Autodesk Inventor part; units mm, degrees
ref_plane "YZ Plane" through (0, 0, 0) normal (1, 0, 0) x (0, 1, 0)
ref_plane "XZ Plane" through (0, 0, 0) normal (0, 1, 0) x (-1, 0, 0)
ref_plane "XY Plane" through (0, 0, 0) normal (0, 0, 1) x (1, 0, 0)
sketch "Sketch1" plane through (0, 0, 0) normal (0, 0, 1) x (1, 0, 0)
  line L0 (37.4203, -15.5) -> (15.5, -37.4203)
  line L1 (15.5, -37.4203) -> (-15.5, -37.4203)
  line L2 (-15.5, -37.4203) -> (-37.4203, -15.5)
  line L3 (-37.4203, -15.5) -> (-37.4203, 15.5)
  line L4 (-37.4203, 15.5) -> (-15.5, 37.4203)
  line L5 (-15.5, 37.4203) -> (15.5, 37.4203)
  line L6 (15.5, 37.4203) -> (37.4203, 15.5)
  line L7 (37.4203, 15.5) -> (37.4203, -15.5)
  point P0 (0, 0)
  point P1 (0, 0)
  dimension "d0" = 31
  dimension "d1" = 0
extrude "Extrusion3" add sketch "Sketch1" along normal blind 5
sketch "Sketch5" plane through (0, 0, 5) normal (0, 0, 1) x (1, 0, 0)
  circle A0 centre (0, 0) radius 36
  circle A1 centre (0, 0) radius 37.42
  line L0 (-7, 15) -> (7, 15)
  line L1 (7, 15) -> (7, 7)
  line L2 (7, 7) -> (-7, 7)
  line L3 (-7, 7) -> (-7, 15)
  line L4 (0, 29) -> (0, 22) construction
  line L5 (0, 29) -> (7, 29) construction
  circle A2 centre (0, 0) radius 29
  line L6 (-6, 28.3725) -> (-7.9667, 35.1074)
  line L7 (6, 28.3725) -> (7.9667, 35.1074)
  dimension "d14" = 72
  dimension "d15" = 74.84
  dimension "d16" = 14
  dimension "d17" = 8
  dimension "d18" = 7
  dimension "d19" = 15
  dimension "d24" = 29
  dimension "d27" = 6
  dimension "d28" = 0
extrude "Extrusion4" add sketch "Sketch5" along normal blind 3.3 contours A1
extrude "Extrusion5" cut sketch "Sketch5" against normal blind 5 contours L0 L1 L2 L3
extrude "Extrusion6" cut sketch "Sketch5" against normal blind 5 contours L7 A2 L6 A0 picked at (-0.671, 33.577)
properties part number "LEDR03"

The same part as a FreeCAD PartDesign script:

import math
import FreeCAD as App
import Part
import Sketcher

V = App.Vector
Q = App.Units.Quantity

doc = App.newDocument("Part")
body = doc.addObject("PartDesign::Body", "Body")

sketch1 = body.newObject("Sketcher::SketchObject", "Sketch")
sketch1.AttachmentSupport = (doc.getObject("XY_Plane"), [""])
sketch1.MapMode = "FlatFace"
sketch1.addGeometry(Part.LineSegment(V(16, -37, 0), V(37, -16, 0)), False)
sketch1.addGeometry(Part.LineSegment(V(37, -16, 0), V(37, 16, 0)), False)
sketch1.addGeometry(Part.LineSegment(V(37, 16, 0), V(16, 37, 0)), False)
sketch1.addGeometry(Part.LineSegment(V(16, 37, 0), V(-16, 37, 0)), False)
sketch1.addGeometry(Part.LineSegment(V(-16, 37, 0), V(-37, 16, 0)), False)
sketch1.addGeometry(Part.LineSegment(V(-37, 16, 0), V(-37, -16, 0)), False)
sketch1.addGeometry(Part.LineSegment(V(-37, -16, 0), V(-16, -37, 0)), False)
sketch1.addGeometry(Part.LineSegment(V(-16, -37, 0), V(16, -37, 0)), False)
sketch1.addConstraint(Sketcher.Constraint("Coincident", 0, 2, 1, 1))
sketch1.addConstraint(Sketcher.Constraint("Coincident", 1, 2, 2, 1))
sketch1.addConstraint(Sketcher.Constraint("Coincident", 2, 2, 3, 1))
sketch1.addConstraint(Sketcher.Constraint("Coincident", 3, 2, 4, 1))
sketch1.addConstraint(Sketcher.Constraint("Coincident", 4, 2, 5, 1))
sketch1.addConstraint(Sketcher.Constraint("Coincident", 5, 2, 6, 1))
sketch1.addConstraint(Sketcher.Constraint("Coincident", 6, 2, 7, 1))
sketch1.addConstraint(Sketcher.Constraint("Coincident", 7, 2, 0, 1))
sketch1.addConstraint(Sketcher.Constraint("Vertical", 1))
sketch1.addConstraint(Sketcher.Constraint("Horizontal", 3))
sketch1.addConstraint(Sketcher.Constraint("Vertical", 5))
sketch1.addConstraint(Sketcher.Constraint("Horizontal", 7))
sketch1.addConstraint(Sketcher.Constraint("Symmetric", 0, 2, 4, 2, -1, 1))
sketch1.addConstraint(Sketcher.Constraint("Symmetric", 2, 2, 6, 2, -1, 1))
sketch1.addConstraint(Sketcher.Constraint("Perpendicular", 0, 2))
sketch1.addConstraint(Sketcher.Constraint("Perpendicular", 2, 4))
sketch1.addConstraint(Sketcher.Constraint("Perpendicular", 4, 6))
sketch1.addConstraint(Sketcher.Constraint("Horizontal", 1, 2, 4, 2))
sketch1.addConstraint(Sketcher.Constraint("Vertical", 3, 2, 6, 2))
sketch1.addConstraint(Sketcher.Constraint("Equal", 7, 1))
sketch1.addConstraint(Sketcher.Constraint("DistanceX", 3, 2, 3, 1, Q("31 mm")))
sketch1.addConstraint(Sketcher.Constraint("Distance", 0, Q("31 mm")))
pad1 = body.newObject("PartDesign::Pad", "Pad")
pad1.Profile = sketch1
pad1.Length = 5

sketch2 = body.newObject("Sketcher::SketchObject", "Sketch001")
sketch2.AttachmentSupport = (doc.getObject("XY_Plane"), [""])
sketch2.MapMode = "FlatFace"
sketch2.AttachmentOffset = App.Placement(V(0, 0, 5), App.Rotation())
sketch2.addGeometry(Part.Circle(V(0, 0, 0), V(0, 0, 1), 37), False)
sketch2.addGeometry(Part.Circle(V(0, 0, 0), V(0, 0, 1), 36), False)
sketch2.addConstraint(Sketcher.Constraint("Coincident", 0, 3, -1, 1))
sketch2.addConstraint(Sketcher.Constraint("Coincident", 1, 3, -1, 1))
sketch2.addConstraint(Sketcher.Constraint("Diameter", 1, Q("72 mm")))
sketch2.addConstraint(Sketcher.Constraint("Diameter", 0, Q("74.84 mm")))
pad2 = body.newObject("PartDesign::Pad", "Pad001")
pad2.Profile = sketch2
pad2.Length = 3.3

sketch3 = body.newObject("Sketcher::SketchObject", "Sketch002")
sketch3.AttachmentSupport = (doc.getObject("XY_Plane"), [""])
sketch3.MapMode = "FlatFace"
sketch3.AttachmentOffset = App.Placement(V(0, 0, 5), App.Rotation())
sketch3.addGeometry(Part.LineSegment(V(7, 15, 0), V(-7, 15, 0)), False)
sketch3.addGeometry(Part.LineSegment(V(-7, 15, 0), V(-7, 7, 0)), False)
sketch3.addGeometry(Part.LineSegment(V(-7, 7, 0), V(7, 7, 0)), False)
sketch3.addGeometry(Part.LineSegment(V(7, 7, 0), V(7, 15, 0)), False)
sketch3.addConstraint(Sketcher.Constraint("Coincident", 0, 2, 1, 1))
sketch3.addConstraint(Sketcher.Constraint("Coincident", 1, 2, 2, 1))
sketch3.addConstraint(Sketcher.Constraint("Coincident", 2, 2, 3, 1))
sketch3.addConstraint(Sketcher.Constraint("Coincident", 3, 2, 0, 1))
sketch3.addConstraint(Sketcher.Constraint("Horizontal", 0))
sketch3.addConstraint(Sketcher.Constraint("Vertical", 1))
sketch3.addConstraint(Sketcher.Constraint("Horizontal", 2))
sketch3.addConstraint(Sketcher.Constraint("Vertical", 3))
sketch3.addConstraint(Sketcher.Constraint("DistanceX", 0, 2, 0, 1, Q("14 mm")))
sketch3.addConstraint(Sketcher.Constraint("DistanceY", 1, 2, 1, 1, Q("8 mm")))
sketch3.addConstraint(Sketcher.Constraint("DistanceX", 0, 2, -1, 1, Q("7 mm")))
sketch3.addConstraint(Sketcher.Constraint("DistanceY", -1, 1, 0, 2, Q("15 mm")))
pocket1 = body.newObject("PartDesign::Pocket", "Pocket")
pocket1.Profile = sketch3
pocket1.Length = 5

sketch4 = body.newObject("Sketcher::SketchObject", "Sketch003")
sketch4.AttachmentSupport = (doc.getObject("XY_Plane"), [""])
sketch4.MapMode = "FlatFace"
sketch4.AttachmentOffset = App.Placement(V(0, 0, 5), App.Rotation())
sketch4.addGeometry(Part.LineSegment(V(6, 28, 0), V(8, 35, 0)), False)
sketch4.addGeometry(Part.ArcOfCircle(Part.Circle(V(0, 0, 0), V(0, 0, 1), 36), math.radians(77), math.radians(103)), False)
sketch4.addGeometry(Part.LineSegment(V(-8, 35, 0), V(-6, 28, 0)), False)
sketch4.addGeometry(Part.ArcOfCircle(Part.Circle(V(0, 0, 0), V(0, 0, 1), 29), math.radians(78), math.radians(102)), False)
sketch4.addConstraint(Sketcher.Constraint("Coincident", 0, 2, 1, 1))
sketch4.addConstraint(Sketcher.Constraint("Coincident", 1, 2, 2, 1))
sketch4.addConstraint(Sketcher.Constraint("Coincident", 2, 2, 3, 2))
sketch4.addConstraint(Sketcher.Constraint("Coincident", 3, 1, 0, 1))
sketch4.addConstraint(Sketcher.Constraint("Coincident", 1, 3, -1, 1))
sketch4.addConstraint(Sketcher.Constraint("Coincident", 3, 3, -1, 1))
sketch4.addConstraint(Sketcher.Constraint("Horizontal", 0, 2, 1, 2))
sketch4.addConstraint(Sketcher.Constraint("Horizontal", 2, 2, 3, 1))
sketch4.addConstraint(Sketcher.Constraint("Radius", 1, Q("36 mm")))
sketch4.addConstraint(Sketcher.Constraint("Radius", 3, Q("29 mm")))
sketch4.addConstraint(Sketcher.Constraint("DistanceX", 2, 2, -1, 1, Q("6 mm")))
sketch4.addConstraint(Sketcher.Constraint("DistanceY", 2, 2, 1, 2, Q("6.735 mm")))
pocket2 = body.newObject("PartDesign::Pocket", "Pocket001")
pocket2.Profile = sketch4
pocket2.Length = 5

doc.recompute()
